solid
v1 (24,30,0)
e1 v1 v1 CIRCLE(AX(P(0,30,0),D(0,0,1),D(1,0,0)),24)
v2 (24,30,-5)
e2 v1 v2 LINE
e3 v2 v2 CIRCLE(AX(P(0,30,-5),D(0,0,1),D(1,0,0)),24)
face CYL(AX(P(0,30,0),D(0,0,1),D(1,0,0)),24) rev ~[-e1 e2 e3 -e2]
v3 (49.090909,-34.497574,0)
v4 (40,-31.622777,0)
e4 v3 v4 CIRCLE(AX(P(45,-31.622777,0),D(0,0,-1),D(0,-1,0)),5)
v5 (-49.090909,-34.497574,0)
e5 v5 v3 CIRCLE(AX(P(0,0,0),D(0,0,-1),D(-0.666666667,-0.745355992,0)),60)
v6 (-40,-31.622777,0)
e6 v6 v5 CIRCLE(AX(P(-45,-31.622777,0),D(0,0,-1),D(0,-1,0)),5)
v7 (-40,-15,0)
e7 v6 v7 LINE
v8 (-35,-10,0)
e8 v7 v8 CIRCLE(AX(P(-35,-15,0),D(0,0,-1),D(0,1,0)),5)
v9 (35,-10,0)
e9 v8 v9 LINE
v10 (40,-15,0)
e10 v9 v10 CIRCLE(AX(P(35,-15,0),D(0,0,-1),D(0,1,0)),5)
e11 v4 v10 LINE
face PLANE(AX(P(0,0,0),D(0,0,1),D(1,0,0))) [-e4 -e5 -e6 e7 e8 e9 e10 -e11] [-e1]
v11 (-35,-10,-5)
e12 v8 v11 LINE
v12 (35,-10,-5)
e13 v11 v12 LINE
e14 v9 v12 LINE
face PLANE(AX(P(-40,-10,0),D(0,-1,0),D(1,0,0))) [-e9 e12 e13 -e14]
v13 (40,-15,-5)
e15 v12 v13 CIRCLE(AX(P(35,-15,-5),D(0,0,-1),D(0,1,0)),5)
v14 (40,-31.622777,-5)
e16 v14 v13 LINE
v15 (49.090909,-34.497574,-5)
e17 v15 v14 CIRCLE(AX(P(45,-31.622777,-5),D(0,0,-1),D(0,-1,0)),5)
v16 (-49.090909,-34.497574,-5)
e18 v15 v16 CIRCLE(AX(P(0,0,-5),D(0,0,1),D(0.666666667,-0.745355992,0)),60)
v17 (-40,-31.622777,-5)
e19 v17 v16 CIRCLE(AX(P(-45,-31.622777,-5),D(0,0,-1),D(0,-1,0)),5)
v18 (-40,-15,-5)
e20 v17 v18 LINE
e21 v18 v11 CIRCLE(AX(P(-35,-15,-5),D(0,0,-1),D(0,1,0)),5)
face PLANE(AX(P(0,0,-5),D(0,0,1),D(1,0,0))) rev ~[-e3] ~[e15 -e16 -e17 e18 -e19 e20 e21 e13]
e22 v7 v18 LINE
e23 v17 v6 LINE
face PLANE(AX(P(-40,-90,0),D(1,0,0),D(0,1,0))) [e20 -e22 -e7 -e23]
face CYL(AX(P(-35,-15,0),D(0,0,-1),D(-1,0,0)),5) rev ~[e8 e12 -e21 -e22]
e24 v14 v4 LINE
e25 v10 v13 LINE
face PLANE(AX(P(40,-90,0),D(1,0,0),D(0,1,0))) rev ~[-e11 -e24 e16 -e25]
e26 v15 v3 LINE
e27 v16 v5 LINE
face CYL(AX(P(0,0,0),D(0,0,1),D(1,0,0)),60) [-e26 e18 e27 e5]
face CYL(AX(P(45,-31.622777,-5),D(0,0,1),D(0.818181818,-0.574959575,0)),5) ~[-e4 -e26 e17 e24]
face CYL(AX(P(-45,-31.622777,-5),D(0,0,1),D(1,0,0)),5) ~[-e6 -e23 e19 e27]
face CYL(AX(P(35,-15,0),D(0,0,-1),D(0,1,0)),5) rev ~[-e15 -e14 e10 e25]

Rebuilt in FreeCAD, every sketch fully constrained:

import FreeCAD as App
import Part
import Sketcher
Q = App.Units.Quantity


def edges_at(feature, points):
    """Names of the edges that pass closest to the given points."""
    edges = feature.Shape.Edges
    near = lambda p: min(range(len(edges)), key=lambda i: edges[i].distToShape(Part.Vertex(*p))[0])
    return sorted({f"Edge{near(p) + 1}" for p in points})

doc = App.newDocument("Part")
body = doc.addObject("PartDesign::Body", "Body")

# Sketch on XY plane
sketch1 = doc.addObject("Sketcher::SketchObject", "Sketch")
body.addObject(sketch1)
sketch1.AttachmentSupport = (doc.XY_Plane, [""])
sketch1.MapMode = "FlatFace"
sketch1.addGeometry(Part.Circle(App.Vector(0, 0, 0), App.Vector(0, 0, 1), 60), False)
sketch1.addConstraint([
    Sketcher.Constraint("Coincident", 0, 3, -1, 1),
    Sketcher.Constraint("Diameter", 0, Q("120 mm")),
])
pad1 = doc.addObject("PartDesign::Pad", "Pad")
body.addObject(pad1)
pad1.Profile = sketch1
pad1.Length = 5
pad1.Reversed = True

# Sketch on XY plane
sketch2 = doc.addObject("Sketcher::SketchObject", "Sketch001")
body.addObject(sketch2)
sketch2.AttachmentSupport = (doc.XY_Plane, [""])
sketch2.MapMode = "FlatFace"
sketch2.addGeometry([
    Part.Circle(App.Vector(0, 30, 0), App.Vector(0, 0, 1), 24),  # 0
    Part.LineSegment(App.Vector(-40, -10, 0), App.Vector(-40, -90, 0)),  # 1
    Part.LineSegment(App.Vector(-40, -90, 0), App.Vector(40, -90, 0)),  # 2
    Part.LineSegment(App.Vector(40, -90, 0), App.Vector(40, -10, 0)),  # 3
    Part.LineSegment(App.Vector(40, -10, 0), App.Vector(-40, -10, 0)),  # 4
], False)
sketch2.addConstraint([
    Sketcher.Constraint("Coincident", 1, 2, 2, 1),
    Sketcher.Constraint("Coincident", 2, 2, 3, 1),
    Sketcher.Constraint("Coincident", 3, 2, 4, 1),
    Sketcher.Constraint("Coincident", 4, 2, 1, 1),
    Sketcher.Constraint("Vertical", 1),
    Sketcher.Constraint("Horizontal", 2),
    Sketcher.Constraint("Vertical", 3),
    Sketcher.Constraint("Horizontal", 4),
    Sketcher.Constraint("PointOnObject", 0, 3, -2),
    Sketcher.Constraint("Equal", 4, 1),
    Sketcher.Constraint("Diameter", 0, Q("48 mm")),
    Sketcher.Constraint("DistanceX", 2, 1, 2, 2, Q("80 mm")),
    Sketcher.Constraint("DistanceY", -1, 1, 0, 3, Q("30 mm")),
    Sketcher.Constraint("DistanceX", 1, 2, -1, 1, Q("40 mm")),
    Sketcher.Constraint("DistanceY", 1, 2, -1, 1, Q("90 mm")),
])
pocket1 = doc.addObject("PartDesign::Pocket", "Pocket")
body.addObject(pocket1)
pocket1.Profile = sketch2
pocket1.Type = "ThroughAll"
doc.recompute()

fillet = doc.addObject("PartDesign::Fillet", "Fillet")
body.addObject(fillet)
fillet.Base = (pocket1, edges_at(pocket1, [(-40, -10, -2.5), (40, -10, -2.5)]))
fillet.Radius = 5
doc.recompute()

fillet2 = doc.addObject("PartDesign::Fillet", "Fillet001")
body.addObject(fillet2)
fillet2.Base = (fillet, edges_at(fillet, [(-40, -44.721, -2.5), (40, -44.721, -2.5)]))
fillet2.Radius = 5

doc.recompute()
